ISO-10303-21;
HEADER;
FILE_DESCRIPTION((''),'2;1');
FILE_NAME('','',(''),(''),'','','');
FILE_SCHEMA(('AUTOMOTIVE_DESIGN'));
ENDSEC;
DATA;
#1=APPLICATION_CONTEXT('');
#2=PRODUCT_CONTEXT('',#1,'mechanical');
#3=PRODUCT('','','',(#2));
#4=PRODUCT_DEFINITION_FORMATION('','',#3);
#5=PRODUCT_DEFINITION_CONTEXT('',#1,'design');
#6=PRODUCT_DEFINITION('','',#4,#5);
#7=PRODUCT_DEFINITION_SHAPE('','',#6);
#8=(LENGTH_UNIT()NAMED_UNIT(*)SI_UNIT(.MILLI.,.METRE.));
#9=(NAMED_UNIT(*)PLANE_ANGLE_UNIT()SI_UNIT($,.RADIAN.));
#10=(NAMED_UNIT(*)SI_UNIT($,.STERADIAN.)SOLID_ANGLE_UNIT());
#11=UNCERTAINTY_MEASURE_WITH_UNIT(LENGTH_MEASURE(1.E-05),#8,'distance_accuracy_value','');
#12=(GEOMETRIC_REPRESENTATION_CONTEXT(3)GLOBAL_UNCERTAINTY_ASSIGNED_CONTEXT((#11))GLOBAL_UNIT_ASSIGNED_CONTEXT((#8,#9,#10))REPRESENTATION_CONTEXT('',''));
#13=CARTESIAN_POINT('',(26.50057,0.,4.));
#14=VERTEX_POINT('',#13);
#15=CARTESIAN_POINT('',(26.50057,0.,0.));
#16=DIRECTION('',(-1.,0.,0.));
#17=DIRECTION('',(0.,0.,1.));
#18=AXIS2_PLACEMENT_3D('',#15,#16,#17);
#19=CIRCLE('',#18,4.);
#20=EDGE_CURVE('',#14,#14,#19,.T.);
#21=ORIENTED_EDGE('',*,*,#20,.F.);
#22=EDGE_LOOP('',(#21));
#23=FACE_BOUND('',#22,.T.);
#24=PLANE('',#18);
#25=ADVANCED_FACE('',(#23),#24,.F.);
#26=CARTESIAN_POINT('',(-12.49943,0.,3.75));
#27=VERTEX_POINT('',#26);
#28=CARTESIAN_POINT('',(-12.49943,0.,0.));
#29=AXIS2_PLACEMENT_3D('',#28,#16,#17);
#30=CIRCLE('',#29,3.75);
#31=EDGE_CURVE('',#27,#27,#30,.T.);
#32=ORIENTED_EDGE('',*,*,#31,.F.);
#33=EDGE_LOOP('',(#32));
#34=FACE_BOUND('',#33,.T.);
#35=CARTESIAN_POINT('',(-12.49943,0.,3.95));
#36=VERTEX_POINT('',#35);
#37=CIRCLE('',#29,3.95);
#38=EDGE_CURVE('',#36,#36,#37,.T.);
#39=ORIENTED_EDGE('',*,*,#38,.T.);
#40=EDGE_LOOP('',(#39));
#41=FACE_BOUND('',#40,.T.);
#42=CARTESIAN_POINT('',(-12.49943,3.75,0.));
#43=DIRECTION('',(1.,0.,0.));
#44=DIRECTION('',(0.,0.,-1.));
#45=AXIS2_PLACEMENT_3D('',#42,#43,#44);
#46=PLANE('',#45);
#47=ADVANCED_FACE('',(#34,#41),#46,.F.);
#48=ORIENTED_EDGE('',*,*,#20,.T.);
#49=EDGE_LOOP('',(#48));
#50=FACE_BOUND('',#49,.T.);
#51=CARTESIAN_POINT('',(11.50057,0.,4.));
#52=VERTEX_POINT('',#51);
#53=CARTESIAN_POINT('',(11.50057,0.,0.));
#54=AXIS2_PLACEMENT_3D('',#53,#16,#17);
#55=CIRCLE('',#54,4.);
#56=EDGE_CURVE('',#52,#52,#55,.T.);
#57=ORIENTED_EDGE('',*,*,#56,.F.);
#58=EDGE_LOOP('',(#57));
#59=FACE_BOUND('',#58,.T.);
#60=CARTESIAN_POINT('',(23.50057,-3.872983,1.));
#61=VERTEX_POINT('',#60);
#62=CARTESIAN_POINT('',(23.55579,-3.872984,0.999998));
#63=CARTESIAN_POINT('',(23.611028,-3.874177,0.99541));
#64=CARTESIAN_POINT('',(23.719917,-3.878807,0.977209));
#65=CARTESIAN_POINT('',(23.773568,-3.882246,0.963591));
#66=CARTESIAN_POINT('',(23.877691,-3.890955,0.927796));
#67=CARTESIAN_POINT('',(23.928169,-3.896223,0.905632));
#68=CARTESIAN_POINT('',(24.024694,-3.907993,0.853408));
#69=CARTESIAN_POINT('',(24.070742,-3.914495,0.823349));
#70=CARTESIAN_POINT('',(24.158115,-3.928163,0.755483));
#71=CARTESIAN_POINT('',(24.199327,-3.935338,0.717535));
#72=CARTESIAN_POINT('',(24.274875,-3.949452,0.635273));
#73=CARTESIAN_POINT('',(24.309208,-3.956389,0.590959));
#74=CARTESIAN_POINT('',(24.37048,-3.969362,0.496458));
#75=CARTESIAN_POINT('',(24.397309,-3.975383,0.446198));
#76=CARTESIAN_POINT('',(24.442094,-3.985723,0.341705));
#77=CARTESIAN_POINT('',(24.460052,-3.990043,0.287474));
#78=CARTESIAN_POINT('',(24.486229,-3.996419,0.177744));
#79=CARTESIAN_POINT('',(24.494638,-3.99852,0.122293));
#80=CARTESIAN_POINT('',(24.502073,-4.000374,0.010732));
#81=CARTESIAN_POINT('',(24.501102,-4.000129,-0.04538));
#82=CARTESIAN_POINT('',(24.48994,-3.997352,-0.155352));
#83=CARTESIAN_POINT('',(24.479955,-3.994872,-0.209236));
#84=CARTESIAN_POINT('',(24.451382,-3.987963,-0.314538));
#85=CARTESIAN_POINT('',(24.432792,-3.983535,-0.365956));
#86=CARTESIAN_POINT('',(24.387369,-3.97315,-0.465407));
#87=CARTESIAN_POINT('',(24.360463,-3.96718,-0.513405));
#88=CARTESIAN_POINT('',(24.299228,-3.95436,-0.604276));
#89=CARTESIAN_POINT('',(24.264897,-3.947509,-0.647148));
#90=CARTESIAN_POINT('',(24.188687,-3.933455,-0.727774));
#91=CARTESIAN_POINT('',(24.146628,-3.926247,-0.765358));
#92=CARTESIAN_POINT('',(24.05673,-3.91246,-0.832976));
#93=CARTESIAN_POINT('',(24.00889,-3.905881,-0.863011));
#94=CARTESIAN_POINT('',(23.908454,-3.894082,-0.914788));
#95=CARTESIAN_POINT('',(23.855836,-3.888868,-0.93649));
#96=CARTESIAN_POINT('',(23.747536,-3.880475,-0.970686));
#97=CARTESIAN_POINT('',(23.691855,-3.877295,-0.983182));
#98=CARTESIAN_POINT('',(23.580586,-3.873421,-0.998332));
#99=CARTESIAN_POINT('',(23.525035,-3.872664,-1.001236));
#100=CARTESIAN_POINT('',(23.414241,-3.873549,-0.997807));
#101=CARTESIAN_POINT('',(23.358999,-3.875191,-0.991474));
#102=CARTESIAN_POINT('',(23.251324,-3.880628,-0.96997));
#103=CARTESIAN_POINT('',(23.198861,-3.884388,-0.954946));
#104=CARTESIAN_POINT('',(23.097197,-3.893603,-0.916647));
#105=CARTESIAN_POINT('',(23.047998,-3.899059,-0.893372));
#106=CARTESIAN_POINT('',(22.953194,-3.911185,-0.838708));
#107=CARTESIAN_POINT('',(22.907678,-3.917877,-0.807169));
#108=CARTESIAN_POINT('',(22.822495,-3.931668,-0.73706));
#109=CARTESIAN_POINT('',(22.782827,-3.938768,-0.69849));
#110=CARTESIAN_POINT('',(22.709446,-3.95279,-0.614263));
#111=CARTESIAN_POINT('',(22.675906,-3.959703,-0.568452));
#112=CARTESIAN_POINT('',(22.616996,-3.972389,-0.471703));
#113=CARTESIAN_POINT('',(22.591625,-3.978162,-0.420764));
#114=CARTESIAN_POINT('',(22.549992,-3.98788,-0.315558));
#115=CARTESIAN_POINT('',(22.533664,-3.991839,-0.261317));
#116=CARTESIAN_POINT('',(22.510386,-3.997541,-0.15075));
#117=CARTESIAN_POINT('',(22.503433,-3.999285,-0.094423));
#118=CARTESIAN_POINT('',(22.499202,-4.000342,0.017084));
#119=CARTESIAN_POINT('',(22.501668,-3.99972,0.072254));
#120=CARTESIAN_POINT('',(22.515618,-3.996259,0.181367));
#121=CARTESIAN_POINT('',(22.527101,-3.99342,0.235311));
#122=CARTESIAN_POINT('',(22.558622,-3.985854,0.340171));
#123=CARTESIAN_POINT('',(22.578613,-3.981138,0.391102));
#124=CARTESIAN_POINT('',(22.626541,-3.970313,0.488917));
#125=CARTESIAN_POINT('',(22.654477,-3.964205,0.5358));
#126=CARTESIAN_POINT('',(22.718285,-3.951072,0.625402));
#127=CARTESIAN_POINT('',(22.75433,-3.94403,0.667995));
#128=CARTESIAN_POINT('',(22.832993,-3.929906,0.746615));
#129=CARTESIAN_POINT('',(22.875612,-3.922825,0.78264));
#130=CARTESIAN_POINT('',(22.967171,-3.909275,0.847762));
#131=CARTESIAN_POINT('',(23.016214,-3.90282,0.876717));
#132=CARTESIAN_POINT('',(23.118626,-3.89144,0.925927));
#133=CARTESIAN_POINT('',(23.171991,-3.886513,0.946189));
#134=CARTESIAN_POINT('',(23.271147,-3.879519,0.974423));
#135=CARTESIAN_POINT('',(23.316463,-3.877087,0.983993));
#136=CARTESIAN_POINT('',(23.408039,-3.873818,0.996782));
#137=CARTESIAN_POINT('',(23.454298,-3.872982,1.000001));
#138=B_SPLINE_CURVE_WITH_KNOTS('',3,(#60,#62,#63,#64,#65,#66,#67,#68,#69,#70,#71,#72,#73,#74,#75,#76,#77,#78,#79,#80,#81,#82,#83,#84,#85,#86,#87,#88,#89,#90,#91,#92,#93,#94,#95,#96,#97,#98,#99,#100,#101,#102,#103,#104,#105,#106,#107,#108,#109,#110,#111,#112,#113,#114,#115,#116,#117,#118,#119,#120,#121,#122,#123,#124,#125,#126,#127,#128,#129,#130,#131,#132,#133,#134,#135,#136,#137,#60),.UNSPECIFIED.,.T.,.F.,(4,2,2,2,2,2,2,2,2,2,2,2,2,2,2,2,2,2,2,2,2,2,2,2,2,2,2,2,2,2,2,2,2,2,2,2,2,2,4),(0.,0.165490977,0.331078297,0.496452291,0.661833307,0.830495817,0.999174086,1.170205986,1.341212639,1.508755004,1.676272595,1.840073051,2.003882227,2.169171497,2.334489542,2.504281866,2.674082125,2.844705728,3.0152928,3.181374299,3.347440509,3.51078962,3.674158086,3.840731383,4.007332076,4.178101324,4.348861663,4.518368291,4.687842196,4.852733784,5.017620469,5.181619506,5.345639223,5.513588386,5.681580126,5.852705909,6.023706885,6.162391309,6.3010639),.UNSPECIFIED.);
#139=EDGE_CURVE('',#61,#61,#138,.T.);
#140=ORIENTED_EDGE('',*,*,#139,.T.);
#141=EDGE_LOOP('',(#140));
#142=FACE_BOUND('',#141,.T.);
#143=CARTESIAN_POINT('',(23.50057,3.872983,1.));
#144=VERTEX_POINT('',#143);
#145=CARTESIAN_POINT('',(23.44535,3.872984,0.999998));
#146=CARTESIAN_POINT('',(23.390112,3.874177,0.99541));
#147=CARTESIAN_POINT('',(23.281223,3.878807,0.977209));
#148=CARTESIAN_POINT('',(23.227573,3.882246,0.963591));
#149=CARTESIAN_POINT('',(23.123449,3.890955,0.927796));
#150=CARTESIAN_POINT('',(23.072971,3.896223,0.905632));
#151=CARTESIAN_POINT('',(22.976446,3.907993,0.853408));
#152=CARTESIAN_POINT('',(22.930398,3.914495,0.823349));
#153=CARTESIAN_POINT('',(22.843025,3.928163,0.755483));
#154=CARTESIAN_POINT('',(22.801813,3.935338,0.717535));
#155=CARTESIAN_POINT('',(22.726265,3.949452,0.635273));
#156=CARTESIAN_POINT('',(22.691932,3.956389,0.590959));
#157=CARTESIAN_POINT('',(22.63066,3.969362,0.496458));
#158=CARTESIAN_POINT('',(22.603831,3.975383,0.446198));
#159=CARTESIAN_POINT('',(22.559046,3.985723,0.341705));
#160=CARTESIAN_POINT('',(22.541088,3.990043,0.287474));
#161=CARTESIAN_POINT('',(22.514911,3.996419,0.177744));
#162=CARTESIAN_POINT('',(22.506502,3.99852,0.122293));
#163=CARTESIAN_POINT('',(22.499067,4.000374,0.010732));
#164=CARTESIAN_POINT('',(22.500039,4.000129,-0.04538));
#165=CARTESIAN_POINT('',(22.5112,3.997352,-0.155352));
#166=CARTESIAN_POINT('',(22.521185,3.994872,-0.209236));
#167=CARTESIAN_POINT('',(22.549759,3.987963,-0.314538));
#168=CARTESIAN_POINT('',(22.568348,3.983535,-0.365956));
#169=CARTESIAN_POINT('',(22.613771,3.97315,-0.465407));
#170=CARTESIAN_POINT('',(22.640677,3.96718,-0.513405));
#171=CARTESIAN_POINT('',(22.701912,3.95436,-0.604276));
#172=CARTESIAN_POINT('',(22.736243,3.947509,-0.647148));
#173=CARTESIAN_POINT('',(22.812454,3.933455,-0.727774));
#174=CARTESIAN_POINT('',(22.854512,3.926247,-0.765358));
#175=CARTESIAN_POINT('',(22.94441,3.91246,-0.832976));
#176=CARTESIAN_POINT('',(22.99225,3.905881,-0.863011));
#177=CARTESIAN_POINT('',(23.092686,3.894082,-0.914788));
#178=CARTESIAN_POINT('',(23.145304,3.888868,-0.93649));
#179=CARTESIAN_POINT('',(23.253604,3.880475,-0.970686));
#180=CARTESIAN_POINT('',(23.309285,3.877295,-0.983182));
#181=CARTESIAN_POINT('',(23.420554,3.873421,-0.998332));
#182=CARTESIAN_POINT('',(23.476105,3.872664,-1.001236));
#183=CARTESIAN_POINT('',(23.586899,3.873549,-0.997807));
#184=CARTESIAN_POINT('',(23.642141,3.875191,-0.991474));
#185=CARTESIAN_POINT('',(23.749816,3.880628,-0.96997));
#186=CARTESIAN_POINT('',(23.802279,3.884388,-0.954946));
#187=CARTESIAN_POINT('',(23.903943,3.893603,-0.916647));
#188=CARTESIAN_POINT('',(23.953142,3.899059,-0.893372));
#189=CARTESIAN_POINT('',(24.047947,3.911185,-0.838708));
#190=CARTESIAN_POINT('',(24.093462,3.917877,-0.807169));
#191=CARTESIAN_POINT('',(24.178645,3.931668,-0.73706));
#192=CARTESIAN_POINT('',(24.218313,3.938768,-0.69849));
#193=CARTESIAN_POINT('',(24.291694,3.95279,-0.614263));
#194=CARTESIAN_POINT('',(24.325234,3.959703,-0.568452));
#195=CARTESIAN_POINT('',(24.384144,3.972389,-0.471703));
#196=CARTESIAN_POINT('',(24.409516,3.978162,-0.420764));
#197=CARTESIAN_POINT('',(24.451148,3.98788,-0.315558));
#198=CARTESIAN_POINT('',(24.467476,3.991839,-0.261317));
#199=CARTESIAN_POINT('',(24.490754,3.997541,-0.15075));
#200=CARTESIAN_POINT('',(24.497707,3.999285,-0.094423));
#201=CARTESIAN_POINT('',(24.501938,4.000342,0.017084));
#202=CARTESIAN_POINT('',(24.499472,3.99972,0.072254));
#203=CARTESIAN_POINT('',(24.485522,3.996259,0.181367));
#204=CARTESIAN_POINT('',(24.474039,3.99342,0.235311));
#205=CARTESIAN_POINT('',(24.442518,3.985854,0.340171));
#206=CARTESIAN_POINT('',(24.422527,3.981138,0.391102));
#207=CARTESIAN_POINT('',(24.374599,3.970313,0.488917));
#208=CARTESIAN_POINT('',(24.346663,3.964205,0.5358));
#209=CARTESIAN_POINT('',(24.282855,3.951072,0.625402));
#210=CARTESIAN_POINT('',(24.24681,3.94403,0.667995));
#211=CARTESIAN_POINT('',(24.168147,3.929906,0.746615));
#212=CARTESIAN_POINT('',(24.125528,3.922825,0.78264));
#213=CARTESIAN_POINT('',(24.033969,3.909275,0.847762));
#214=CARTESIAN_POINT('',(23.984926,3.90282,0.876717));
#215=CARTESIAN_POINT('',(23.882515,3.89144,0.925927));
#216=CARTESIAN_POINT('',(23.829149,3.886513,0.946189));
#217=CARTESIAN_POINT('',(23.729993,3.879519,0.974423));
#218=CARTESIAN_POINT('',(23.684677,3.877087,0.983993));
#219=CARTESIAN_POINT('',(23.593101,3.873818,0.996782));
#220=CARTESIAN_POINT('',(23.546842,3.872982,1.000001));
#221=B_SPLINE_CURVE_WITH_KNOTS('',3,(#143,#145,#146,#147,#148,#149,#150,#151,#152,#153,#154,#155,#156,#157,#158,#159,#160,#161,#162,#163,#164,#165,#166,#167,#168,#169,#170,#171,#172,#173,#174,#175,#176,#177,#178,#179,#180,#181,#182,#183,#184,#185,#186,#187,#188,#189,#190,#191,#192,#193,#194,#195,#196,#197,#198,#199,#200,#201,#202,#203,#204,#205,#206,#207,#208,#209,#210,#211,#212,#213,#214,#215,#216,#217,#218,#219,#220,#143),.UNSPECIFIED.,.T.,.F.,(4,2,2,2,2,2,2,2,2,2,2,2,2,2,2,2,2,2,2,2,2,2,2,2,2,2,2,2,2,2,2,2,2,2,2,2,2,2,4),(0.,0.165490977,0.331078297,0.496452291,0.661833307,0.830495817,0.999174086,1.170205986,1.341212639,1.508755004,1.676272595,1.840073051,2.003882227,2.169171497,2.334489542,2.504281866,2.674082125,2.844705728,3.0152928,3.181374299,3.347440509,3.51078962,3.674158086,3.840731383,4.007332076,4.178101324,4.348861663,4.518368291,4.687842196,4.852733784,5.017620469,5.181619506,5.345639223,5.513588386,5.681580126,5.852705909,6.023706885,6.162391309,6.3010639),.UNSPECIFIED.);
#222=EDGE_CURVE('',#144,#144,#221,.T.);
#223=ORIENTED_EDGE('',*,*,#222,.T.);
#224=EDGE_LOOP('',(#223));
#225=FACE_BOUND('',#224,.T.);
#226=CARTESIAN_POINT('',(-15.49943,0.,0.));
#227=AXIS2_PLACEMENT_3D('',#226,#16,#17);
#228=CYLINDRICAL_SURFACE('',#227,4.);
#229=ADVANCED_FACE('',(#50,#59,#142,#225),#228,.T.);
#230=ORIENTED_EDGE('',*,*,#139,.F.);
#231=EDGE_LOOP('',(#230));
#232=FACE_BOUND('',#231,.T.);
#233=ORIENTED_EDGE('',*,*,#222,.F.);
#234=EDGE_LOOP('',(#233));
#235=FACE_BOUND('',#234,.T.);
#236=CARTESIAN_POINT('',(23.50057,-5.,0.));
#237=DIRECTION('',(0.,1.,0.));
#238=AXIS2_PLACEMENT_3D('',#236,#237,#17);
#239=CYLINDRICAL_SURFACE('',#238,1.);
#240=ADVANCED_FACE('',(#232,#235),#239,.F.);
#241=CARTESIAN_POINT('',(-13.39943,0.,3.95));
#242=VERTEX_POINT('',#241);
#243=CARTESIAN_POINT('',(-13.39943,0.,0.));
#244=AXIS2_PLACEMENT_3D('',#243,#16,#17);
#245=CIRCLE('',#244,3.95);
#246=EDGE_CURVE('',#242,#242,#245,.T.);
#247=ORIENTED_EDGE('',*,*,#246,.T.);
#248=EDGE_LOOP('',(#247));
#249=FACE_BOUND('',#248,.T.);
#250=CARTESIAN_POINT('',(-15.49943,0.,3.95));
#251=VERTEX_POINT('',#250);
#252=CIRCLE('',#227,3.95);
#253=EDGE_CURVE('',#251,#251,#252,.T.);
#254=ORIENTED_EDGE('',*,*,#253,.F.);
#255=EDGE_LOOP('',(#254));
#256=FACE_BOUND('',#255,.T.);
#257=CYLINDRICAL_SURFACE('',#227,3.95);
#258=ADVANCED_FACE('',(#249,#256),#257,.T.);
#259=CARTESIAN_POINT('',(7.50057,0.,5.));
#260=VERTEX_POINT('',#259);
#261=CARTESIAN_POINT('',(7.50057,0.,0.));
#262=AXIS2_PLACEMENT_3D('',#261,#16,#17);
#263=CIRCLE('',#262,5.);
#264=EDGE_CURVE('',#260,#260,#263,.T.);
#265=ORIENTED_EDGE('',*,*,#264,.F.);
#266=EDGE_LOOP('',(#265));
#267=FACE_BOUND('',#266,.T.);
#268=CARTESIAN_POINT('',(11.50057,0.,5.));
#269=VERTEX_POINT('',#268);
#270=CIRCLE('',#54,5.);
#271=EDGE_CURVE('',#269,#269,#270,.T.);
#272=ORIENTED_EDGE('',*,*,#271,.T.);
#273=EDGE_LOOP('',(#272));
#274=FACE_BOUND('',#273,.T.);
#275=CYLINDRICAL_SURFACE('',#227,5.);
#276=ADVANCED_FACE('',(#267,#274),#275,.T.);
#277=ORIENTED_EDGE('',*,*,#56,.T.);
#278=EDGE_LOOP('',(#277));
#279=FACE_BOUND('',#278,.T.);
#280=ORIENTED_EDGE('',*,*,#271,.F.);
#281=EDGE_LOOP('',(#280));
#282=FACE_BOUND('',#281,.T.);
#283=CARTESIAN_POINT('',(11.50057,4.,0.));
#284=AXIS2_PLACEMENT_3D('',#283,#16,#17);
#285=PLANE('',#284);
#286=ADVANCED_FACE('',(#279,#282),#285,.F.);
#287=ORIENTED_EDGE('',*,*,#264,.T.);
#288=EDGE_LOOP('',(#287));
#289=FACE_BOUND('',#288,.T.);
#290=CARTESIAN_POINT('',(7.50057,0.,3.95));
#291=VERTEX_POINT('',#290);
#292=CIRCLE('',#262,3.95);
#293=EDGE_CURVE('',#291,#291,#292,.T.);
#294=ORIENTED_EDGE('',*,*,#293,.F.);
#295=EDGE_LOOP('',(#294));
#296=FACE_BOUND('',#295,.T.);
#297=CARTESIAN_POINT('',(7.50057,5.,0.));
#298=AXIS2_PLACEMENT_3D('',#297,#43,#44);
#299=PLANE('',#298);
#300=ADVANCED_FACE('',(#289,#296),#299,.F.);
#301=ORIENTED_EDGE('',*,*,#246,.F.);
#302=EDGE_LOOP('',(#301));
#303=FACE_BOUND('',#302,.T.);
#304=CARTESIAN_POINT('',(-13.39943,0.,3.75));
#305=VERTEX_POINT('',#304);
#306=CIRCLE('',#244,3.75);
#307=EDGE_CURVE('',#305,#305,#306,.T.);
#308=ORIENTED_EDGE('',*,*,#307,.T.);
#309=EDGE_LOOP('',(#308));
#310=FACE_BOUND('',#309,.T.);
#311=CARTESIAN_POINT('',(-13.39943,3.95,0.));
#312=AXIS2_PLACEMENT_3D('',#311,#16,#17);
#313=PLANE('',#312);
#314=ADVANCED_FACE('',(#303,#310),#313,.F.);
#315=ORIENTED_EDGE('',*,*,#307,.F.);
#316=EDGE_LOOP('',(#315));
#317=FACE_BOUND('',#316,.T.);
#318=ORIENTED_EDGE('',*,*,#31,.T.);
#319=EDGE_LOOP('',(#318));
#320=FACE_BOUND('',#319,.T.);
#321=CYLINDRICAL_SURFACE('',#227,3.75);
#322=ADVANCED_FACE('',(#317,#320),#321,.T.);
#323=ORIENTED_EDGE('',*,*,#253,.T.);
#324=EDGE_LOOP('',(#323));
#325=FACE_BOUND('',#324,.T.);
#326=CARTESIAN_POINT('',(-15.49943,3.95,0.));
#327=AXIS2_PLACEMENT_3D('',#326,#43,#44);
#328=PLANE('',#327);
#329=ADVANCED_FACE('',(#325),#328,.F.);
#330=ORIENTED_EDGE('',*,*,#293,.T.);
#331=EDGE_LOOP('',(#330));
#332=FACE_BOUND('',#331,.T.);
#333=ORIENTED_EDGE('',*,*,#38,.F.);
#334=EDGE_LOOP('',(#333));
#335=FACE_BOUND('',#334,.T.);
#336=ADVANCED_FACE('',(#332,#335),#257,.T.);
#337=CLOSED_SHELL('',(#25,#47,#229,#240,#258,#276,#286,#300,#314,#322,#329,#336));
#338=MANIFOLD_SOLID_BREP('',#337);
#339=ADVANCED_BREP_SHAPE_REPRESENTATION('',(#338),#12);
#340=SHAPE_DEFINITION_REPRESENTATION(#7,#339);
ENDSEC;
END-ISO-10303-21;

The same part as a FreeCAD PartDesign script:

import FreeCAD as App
import Part
import Sketcher

V = App.Vector
Q = App.Units.Quantity


def add_polygon(sketch, points):
    """Adds a closed chain of lines whose ends are joined by coincident constraints."""
    first, n = sketch.GeometryCount, len(points)
    for a, b in zip(points, points[1:] + points[:1]):
        sketch.addGeometry(Part.LineSegment(App.Vector(*a, 0), App.Vector(*b, 0)), False)
    for i in range(n):
        sketch.addConstraint(Sketcher.Constraint("Coincident", first + i, 2, first + (i + 1) % n, 1))

doc = App.newDocument("Part")
body = doc.addObject("PartDesign::Body", "Body")

sketch1 = body.newObject("Sketcher::SketchObject", "Sketch")
sketch1.AttachmentSupport = (doc.getObject("XY_Plane"), [""])
sketch1.MapMode = "FlatFace"
add_polygon(sketch1, [(-15.5, 0), (26.5, 0), (26.5, 4), (11.5, 4), (11.5, 5), (7.5, 5), (7.5, 3.95), (-12.5, 3.95), (-12.5, 3.75), (-13.4, 3.75), (-13.4, 3.95), (-15.5, 3.95)])
sketch1.addConstraint([
    Sketcher.Constraint("Horizontal", 0),
    Sketcher.Constraint("Vertical", 1),
    Sketcher.Constraint("Horizontal", 2),
    Sketcher.Constraint("Vertical", 3),
    Sketcher.Constraint("Horizontal", 4),
    Sketcher.Constraint("Vertical", 5),
    Sketcher.Constraint("Horizontal", 6),
    Sketcher.Constraint("Vertical", 7),
    Sketcher.Constraint("Horizontal", 8),
    Sketcher.Constraint("Vertical", 9),
    Sketcher.Constraint("Horizontal", 10),
    Sketcher.Constraint("Vertical", 11),
    Sketcher.Constraint("PointOnObject", 0, 2, -1),
    Sketcher.Constraint("Horizontal", 6, 2, 9, 2),
    Sketcher.Constraint("Equal", 4, 1),
    Sketcher.Constraint("DistanceX", 0, 1, 0, 2, Q("42 mm")),
    Sketcher.Constraint("DistanceX", 2, 2, 2, 1, Q("15 mm")),
    Sketcher.Constraint("DistanceX", 4, 2, 4, 1, Q("4 mm")),
    Sketcher.Constraint("DistanceX", 6, 2, 6, 1, Q("20 mm")),
    Sketcher.Constraint("DistanceY", 3, 1, 3, 2, Q("1 mm")),
    Sketcher.Constraint("DistanceX", 8, 2, 8, 1, Q("0.9 mm")),
    Sketcher.Constraint("DistanceY", 7, 2, 7, 1, Q("0.2 mm")),
    Sketcher.Constraint("DistanceY", 5, 2, 5, 1, Q("1.05 mm")),
    Sketcher.Constraint("DistanceX", -1, 1, 0, 2, Q("26.50057 mm")),
])
revolution = body.newObject("PartDesign::Revolution", "Revolution")
revolution.Profile = sketch1
revolution.ReferenceAxis = (sketch1, ["H_Axis"])
revolution.Angle = 360

sketch2 = body.newObject("Sketcher::SketchObject", "Sketch001")
sketch2.AttachmentSupport = (doc.getObject("XZ_Plane"), [""])
sketch2.MapMode = "FlatFace"
sketch2.addGeometry(Part.Circle(V(23.5, 0, 0), V(0, 0, 1), 1), False)
sketch2.addConstraint([
    Sketcher.Constraint("PointOnObject", 0, 3, -1),
    Sketcher.Constraint("Diameter", 0, Q("2 mm")),
    Sketcher.Constraint("DistanceX", -1, 1, 0, 3, Q("23.50057 mm")),
])
pocket1 = body.newObject("PartDesign::Pocket", "Pocket")
pocket1.Profile = sketch2
pocket1.Length = 10
pocket1.Midplane = True

doc.recompute()
